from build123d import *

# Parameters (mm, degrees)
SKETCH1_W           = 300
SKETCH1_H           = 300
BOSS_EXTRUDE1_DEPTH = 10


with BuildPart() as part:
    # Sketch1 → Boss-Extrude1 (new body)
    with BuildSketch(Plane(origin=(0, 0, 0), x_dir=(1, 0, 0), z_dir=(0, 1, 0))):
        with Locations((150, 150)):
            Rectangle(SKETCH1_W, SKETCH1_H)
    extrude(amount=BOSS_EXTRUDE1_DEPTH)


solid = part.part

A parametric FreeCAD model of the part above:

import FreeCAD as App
import Part
import Sketcher

V = App.Vector
Q = App.Units.Quantity

doc = App.newDocument("Part")
params = doc.addObject("Spreadsheet::Sheet", "Params")
for row, (alias, value) in enumerate([
    ("sketch1_width", "300 mm"),
    ("pad1_length", "10 mm"),
], start=1):
    params.set(f"A{row}", alias)
    params.set(f"B{row}", "=" + value)
    params.setAlias(f"B{row}", alias)

body = doc.addObject("PartDesign::Body", "Body")

# Sketch on XZ plane
sketch1 = body.newObject("Sketcher::SketchObject", "Sketch")
sketch1.AttachmentSupport = (doc.getObject("XZ_Plane"), [""])
sketch1.MapMode = "FlatFace"
sketch1.addGeometry([
    Part.LineSegment(V(0, -300, 0), V(0, 0, 0)),
    Part.LineSegment(V(0, 0, 0), V(300, 0, 0)),
    Part.LineSegment(V(300, 0, 0), V(300, -300, 0)),
    Part.LineSegment(V(300, -300, 0), V(0, -300, 0)),
], False)
sketch1.addConstraint([
    Sketcher.Constraint("Coincident", 0, 2, 1, 1),
    Sketcher.Constraint("Coincident", 1, 2, 2, 1),
    Sketcher.Constraint("Coincident", 2, 2, 3, 1),
    Sketcher.Constraint("Coincident", 3, 2, 0, 1),
    Sketcher.Constraint("Vertical", 0),
    Sketcher.Constraint("Horizontal", 1),
    Sketcher.Constraint("Vertical", 2),
    Sketcher.Constraint("Horizontal", 3),
    Sketcher.Constraint("Coincident", 0, 2, -1, 1),
    Sketcher.Constraint("Equal", 3, 0),
    Sketcher.Constraint("DistanceX", 1, 1, 1, 2, Q("300 mm")),
])
sketch1.setExpression("Constraints[10]", "Params.sketch1_width")
pad1 = body.newObject("PartDesign::Pad", "Pad")
pad1.Profile = sketch1
pad1.setExpression("Length", "Params.pad1_length")
pad1.Reversed = True

doc.recompute()
